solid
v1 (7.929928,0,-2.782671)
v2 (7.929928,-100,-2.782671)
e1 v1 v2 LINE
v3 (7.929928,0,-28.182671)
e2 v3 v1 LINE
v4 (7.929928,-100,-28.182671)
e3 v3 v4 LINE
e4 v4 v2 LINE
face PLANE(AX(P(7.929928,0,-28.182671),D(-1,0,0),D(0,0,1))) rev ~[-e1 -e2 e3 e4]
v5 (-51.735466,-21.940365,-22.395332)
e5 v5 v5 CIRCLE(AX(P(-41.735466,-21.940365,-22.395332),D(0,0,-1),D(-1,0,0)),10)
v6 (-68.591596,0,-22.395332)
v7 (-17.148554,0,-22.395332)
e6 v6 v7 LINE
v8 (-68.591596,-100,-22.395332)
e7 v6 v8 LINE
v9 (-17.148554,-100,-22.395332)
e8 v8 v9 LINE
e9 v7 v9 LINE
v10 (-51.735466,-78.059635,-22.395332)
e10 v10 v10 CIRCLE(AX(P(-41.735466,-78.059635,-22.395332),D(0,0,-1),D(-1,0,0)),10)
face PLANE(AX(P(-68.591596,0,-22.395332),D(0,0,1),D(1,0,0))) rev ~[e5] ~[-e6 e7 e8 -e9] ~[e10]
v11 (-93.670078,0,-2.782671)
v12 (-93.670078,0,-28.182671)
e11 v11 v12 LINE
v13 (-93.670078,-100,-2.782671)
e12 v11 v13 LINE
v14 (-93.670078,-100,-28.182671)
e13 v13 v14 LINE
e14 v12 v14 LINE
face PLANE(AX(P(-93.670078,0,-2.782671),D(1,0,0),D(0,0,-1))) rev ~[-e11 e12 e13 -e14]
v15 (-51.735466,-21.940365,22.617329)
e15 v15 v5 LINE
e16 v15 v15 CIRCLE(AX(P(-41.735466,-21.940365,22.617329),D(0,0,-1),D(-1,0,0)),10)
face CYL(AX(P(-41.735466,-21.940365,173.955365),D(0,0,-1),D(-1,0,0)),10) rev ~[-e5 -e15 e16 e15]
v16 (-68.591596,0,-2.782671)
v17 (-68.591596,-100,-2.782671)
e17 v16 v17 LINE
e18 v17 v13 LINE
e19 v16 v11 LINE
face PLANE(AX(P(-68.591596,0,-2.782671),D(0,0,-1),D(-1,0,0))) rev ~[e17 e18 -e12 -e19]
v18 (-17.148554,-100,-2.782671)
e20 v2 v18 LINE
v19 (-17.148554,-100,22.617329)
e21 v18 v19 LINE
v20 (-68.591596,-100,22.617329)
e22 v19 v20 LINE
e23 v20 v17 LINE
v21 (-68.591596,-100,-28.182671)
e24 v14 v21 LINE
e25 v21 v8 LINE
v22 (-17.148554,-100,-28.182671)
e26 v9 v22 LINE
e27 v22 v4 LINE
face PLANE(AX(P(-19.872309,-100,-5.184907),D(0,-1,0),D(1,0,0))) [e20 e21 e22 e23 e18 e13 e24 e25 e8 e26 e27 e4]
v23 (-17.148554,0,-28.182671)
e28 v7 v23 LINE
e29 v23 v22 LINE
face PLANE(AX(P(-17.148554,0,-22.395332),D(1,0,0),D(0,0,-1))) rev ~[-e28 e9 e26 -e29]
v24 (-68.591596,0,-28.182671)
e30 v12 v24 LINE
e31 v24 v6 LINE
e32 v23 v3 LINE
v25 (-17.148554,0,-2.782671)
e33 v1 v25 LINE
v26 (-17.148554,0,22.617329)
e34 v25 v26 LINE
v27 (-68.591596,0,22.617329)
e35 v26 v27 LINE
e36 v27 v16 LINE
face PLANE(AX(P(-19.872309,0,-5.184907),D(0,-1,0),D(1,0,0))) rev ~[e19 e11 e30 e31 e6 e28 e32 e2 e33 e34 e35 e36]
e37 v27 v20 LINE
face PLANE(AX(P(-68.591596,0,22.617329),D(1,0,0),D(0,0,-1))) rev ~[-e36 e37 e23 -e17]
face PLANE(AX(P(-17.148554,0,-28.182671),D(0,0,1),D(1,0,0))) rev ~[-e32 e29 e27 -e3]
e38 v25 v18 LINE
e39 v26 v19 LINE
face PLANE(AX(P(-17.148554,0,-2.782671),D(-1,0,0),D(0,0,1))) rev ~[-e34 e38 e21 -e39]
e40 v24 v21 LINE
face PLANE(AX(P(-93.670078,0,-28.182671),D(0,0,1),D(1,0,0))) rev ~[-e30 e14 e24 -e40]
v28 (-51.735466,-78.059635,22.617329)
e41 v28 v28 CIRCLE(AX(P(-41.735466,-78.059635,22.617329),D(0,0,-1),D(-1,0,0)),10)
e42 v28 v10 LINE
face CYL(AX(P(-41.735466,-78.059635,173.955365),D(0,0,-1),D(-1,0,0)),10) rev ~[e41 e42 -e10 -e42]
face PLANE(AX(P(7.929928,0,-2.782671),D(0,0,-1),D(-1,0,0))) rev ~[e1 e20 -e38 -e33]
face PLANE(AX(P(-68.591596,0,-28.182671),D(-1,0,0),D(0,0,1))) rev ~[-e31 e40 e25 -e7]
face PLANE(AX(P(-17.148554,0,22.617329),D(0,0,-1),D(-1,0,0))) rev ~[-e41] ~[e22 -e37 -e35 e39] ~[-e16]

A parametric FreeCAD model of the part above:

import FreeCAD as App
import Part
import Sketcher


def add_polygon(sketch, points):
    """Adds a closed chain of lines whose ends are joined by coincident constraints."""
    first, n = sketch.GeometryCount, len(points)
    for a, b in zip(points, points[1:] + points[:1]):
        sketch.addGeometry(Part.LineSegment(App.Vector(*a, 0), App.Vector(*b, 0)), False)
    for i in range(n):
        sketch.addConstraint(Sketcher.Constraint("Coincident", first + i, 2, first + (i + 1) % n, 1))

doc = App.newDocument("Part")
body = doc.addObject("PartDesign::Body", "Body")

# Sketch on XZ plane
sketch1 = body.newObject("Sketcher::SketchObject", "Sketch")
sketch1.AttachmentSupport = (doc.getObject("XZ_Plane"), [""])
sketch1.MapMode = "FlatFace"
add_polygon(sketch1, [(-17, -3), (-17, 23), (-69, 23), (-69, -3), (-94, -3), (-94, -28), (-69, -28), (-69, -22), (-17, -22), (-17, -28), (8, -28), (8, -3)])  # lines 0-11
sketch1.addConstraint([
    Sketcher.Constraint("Vertical", 0),
    Sketcher.Constraint("Horizontal", 1),
    Sketcher.Constraint("Vertical", 2),
    Sketcher.Constraint("Horizontal", 3),
    Sketcher.Constraint("Vertical", 4),
    Sketcher.Constraint("Horizontal", 5),
    Sketcher.Constraint("Vertical", 6),
    Sketcher.Constraint("Horizontal", 7),
    Sketcher.Constraint("Vertical", 8),
    Sketcher.Constraint("Horizontal", 9),
    Sketcher.Constraint("Vertical", 10),
    Sketcher.Constraint("Horizontal", 11),
    Sketcher.Constraint("Horizontal", 5, 2, 8, 2),
    Sketcher.Constraint("Horizontal", 3, 2, 10, 2),
    Sketcher.Constraint("Vertical", 2, 2, 5, 2),
    Sketcher.Constraint("Vertical", 0, 2, 7, 2),
    Sketcher.Constraint("Equal", 5, 9),
    Sketcher.Constraint("Equal", 2, 4),
    Sketcher.Constraint("DistanceY", 0, 1, 0, 2, 25.4),
    Sketcher.Constraint("DistanceX", 1, 2, 1, 1, 51.443042),
    Sketcher.Constraint("DistanceY", 6, 1, 6, 2, 5.787339),
    Sketcher.Constraint("DistanceX", 3, 2, 3, 1, 25.078482),
    Sketcher.Constraint("DistanceY", -1, 1, 0, 2, 22.617329),
    Sketcher.Constraint("DistanceX", 3, 2, -1, 1, 93.670078),
])
pad1 = body.newObject("PartDesign::Pad", "Pad")
pad1.Profile = sketch1
pad1.Length = 100

# Sketch on XY plane
sketch2 = body.newObject("Sketcher::SketchObject", "Sketch001")
sketch2.AttachmentSupport = (doc.getObject("XY_Plane"), [""])
sketch2.MapMode = "FlatFace"
sketch2.AttachmentOffset = App.Placement(App.Vector(0, 0, 22.617329), App.Rotation())
sketch2.addGeometry([
    Part.Circle(App.Vector(-42, -22, 0), App.Vector(0, 0, 1), 10),
    Part.Circle(App.Vector(-42, -78, 0), App.Vector(0, 0, 1), 10),
], False)
sketch2.addConstraint([
    Sketcher.Constraint("Equal", 0, 1),
    Sketcher.Constraint("Vertical", 0, 3, 1, 3),
    Sketcher.Constraint("Diameter", 0, 20.0),
    Sketcher.Constraint("DistanceY", 1, 3, 0, 3, 56.11927),
    Sketcher.Constraint("DistanceX", 0, 3, -1, 1, 41.735466),
    Sketcher.Constraint("DistanceY", 0, 3, -1, 1, 21.940365),
])
doc.recompute()
hole = body.newObject("PartDesign::Hole", "Hole")
hole.Profile = sketch2
hole.ThreadType = "None"
hole.Diameter = 20
hole.DepthType = "ThroughAll"

doc.recompute()
